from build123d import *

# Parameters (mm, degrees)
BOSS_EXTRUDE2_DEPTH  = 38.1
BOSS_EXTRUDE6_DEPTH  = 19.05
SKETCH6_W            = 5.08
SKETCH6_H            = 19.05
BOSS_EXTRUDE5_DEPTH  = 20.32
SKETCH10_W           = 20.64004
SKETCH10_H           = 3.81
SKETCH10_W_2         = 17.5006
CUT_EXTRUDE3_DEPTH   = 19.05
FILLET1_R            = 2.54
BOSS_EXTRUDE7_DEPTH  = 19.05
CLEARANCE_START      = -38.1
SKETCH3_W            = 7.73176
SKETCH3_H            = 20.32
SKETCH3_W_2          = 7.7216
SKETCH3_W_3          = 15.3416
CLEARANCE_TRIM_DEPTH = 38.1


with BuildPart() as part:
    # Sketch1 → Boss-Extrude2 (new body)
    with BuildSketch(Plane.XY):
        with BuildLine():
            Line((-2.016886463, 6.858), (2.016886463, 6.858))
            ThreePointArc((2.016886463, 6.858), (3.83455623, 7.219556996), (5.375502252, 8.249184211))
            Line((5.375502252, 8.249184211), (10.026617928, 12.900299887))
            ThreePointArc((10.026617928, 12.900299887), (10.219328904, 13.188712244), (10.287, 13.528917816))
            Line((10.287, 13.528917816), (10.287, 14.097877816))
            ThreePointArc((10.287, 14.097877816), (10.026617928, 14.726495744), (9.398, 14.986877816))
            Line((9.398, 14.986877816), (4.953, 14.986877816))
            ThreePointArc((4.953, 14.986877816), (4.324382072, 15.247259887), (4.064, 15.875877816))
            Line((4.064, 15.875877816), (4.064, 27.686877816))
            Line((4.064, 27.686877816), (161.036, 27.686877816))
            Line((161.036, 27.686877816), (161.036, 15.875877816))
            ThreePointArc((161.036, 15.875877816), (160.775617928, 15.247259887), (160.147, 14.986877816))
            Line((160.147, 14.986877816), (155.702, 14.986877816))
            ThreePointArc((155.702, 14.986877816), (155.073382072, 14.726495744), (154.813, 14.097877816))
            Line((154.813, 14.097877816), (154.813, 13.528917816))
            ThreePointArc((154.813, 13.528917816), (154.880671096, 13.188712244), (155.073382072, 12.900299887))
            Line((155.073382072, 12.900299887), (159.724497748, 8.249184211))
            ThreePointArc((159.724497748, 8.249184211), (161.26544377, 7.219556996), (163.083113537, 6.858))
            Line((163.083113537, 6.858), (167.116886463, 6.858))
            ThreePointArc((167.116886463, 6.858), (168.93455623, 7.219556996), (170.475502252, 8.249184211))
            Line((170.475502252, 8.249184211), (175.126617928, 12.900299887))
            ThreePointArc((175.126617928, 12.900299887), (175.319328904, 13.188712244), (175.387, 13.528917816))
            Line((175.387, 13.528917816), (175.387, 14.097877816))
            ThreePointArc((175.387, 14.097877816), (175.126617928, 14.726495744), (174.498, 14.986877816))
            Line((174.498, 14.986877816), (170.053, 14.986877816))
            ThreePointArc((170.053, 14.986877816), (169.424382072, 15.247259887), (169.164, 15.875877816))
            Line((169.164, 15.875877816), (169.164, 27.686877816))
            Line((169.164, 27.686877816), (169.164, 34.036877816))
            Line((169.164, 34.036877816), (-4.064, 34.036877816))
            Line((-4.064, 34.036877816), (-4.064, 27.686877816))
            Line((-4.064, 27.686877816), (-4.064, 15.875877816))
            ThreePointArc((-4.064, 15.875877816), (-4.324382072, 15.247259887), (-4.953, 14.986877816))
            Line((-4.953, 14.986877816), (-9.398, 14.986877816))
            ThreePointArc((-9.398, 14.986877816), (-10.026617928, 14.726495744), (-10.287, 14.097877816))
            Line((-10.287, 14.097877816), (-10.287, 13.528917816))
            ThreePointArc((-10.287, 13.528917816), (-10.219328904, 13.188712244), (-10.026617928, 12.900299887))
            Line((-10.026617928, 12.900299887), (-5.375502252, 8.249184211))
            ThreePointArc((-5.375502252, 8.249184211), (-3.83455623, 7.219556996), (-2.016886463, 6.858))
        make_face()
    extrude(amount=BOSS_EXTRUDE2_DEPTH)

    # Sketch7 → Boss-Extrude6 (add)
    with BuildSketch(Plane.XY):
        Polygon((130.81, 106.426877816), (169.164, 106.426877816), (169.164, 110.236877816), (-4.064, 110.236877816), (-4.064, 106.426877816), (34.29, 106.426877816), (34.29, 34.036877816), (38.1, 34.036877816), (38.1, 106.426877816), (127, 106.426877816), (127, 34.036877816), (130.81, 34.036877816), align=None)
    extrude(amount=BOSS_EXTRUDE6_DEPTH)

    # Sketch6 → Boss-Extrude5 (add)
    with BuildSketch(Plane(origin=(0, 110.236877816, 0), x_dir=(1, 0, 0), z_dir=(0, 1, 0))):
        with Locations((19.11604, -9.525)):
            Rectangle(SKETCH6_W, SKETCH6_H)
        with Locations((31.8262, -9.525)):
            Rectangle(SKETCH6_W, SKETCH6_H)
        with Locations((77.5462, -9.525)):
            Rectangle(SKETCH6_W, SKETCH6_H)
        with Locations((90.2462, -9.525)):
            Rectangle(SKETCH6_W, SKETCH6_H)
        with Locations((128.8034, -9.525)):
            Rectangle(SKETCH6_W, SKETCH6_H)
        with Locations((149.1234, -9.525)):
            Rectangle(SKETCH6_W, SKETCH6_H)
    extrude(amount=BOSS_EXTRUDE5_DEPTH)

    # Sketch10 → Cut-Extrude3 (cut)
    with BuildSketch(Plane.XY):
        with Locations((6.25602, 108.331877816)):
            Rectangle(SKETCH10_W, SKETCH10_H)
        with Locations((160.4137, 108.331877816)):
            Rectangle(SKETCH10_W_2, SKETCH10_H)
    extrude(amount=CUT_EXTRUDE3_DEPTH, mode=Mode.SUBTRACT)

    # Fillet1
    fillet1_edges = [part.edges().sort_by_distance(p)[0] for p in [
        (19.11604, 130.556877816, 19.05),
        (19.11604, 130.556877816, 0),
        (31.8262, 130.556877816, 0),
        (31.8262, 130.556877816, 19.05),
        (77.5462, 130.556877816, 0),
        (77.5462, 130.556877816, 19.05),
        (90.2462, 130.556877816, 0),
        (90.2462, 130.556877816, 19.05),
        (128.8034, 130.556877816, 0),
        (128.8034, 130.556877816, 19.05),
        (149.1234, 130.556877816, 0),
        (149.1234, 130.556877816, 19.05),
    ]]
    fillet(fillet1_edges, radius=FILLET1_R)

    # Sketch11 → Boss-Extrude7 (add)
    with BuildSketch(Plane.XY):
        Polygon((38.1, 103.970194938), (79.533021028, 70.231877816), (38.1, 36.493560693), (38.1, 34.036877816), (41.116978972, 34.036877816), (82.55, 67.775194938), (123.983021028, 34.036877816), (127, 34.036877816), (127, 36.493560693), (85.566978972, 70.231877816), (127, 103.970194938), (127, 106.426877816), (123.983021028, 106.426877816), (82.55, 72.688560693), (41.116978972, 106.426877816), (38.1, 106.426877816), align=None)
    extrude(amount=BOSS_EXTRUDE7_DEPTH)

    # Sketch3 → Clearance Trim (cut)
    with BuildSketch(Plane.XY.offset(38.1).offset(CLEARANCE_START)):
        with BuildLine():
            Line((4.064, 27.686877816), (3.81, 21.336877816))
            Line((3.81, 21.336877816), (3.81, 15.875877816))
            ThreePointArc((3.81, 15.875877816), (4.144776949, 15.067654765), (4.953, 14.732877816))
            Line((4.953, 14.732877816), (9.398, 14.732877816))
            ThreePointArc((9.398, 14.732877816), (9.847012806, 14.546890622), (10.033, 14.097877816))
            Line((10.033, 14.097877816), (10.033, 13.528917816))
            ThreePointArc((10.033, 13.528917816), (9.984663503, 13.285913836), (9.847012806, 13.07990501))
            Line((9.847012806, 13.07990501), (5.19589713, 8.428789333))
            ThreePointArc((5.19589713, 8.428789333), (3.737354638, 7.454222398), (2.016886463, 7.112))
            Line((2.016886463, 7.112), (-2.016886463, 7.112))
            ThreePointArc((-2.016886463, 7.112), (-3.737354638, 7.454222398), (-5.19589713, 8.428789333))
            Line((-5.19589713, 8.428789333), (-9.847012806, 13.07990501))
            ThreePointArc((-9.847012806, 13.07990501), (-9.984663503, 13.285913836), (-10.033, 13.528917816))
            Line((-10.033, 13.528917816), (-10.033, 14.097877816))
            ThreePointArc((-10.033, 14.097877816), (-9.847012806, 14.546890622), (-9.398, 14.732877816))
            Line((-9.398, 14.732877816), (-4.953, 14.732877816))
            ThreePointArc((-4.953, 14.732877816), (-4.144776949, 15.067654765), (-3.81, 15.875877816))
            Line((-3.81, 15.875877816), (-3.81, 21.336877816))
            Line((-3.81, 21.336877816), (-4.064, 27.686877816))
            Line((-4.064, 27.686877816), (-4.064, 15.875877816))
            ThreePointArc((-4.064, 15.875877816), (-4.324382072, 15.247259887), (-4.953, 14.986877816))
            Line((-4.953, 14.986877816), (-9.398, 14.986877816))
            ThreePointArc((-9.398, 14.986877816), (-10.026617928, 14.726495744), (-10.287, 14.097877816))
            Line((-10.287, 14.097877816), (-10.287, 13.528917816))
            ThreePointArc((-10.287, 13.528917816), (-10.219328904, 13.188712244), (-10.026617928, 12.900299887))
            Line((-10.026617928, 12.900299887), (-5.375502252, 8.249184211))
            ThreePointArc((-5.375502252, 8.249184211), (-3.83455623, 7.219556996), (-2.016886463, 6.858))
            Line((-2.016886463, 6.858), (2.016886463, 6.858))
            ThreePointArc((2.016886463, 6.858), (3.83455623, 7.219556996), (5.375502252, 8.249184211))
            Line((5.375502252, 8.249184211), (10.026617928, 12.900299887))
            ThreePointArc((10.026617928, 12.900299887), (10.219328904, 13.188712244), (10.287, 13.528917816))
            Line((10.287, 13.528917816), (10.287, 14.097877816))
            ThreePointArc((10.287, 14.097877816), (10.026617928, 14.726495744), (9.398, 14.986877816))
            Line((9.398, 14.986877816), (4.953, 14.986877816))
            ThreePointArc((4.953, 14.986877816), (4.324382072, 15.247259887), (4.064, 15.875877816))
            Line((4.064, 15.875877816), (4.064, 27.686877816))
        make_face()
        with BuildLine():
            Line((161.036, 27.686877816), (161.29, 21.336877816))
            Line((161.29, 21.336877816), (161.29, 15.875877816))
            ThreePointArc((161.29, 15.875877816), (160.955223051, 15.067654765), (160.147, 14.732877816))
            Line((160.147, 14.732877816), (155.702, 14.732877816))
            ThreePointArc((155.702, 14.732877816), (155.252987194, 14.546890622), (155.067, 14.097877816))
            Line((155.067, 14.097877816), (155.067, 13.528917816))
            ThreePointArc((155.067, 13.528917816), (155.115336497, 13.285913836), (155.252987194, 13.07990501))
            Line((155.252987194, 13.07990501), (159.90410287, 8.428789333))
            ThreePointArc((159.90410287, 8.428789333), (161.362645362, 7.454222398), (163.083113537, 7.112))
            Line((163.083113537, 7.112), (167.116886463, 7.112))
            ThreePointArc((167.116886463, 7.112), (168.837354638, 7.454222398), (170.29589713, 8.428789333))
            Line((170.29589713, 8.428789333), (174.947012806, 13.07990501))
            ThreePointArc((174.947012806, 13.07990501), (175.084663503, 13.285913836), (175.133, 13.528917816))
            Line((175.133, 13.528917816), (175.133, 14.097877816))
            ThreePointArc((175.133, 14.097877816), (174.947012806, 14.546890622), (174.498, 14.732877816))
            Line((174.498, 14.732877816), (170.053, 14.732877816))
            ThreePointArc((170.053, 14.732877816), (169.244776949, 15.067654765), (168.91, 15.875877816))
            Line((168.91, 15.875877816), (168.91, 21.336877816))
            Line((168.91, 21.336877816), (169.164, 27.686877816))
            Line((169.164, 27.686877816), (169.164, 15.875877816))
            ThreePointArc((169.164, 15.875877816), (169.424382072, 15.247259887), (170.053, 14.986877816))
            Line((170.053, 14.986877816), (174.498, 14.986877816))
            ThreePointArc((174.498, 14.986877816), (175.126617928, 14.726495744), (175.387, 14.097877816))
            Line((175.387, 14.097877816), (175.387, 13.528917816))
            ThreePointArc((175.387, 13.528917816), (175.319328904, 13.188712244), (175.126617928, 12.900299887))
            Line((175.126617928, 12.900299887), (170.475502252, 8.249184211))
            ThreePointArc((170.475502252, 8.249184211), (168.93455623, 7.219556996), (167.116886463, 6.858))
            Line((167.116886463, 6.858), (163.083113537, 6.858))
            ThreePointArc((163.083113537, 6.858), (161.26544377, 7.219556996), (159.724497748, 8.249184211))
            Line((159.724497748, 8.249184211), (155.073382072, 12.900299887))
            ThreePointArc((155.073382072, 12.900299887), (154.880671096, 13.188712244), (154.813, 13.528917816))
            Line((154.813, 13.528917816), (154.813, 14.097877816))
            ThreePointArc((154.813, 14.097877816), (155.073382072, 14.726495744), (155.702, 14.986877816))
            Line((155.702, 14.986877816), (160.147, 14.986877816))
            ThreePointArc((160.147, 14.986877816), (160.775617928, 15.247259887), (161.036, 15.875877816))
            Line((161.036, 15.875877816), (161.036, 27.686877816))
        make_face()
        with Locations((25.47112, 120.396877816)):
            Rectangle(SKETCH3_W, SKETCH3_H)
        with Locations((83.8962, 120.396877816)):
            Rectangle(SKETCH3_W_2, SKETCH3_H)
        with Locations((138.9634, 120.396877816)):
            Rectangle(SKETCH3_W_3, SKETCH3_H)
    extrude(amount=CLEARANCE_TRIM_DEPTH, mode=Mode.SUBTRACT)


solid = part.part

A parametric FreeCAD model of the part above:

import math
import FreeCAD as App
import Part
import Sketcher
from FreeCAD import Vector
Q = App.Units.Quantity


def edges_at(feature, points):
    """Names of the edges that pass closest to the given points."""
    edges = feature.Shape.Edges
    near = lambda p: min(range(len(edges)), key=lambda i: edges[i].distToShape(Part.Vertex(*p))[0])
    return sorted({f"Edge{near(p) + 1}" for p in points})


def add_polygon(sketch, points):
    """Adds a closed chain of lines whose ends are joined by coincident constraints."""
    first, n = sketch.GeometryCount, len(points)
    for a, b in zip(points, points[1:] + points[:1]):
        sketch.addGeometry(Part.LineSegment(App.Vector(*a, 0), App.Vector(*b, 0)), False)
    for i in range(n):
        sketch.addConstraint(Sketcher.Constraint("Coincident", first + i, 2, first + (i + 1) % n, 1))

doc = App.newDocument("Part")
body = doc.addObject("PartDesign::Body", "Body")

# Sketch on XY plane
sketch1 = body.newObject("Sketcher::SketchObject", "Sketch")
sketch1.AttachmentSupport = (doc.getObject("XY_Plane"), [""])
sketch1.MapMode = "FlatFace"
sketch1.addGeometry([
    Part.LineSegment(Vector(-2, 6.9, 0), Vector(2, 6.9, 0)),  # 0
    Part.ArcOfCircle(Part.Circle(Vector(2, 11.6, 0), Vector(0, 0, 1), 4.7), math.radians(-90), math.radians(-45)),  # 1
    Part.LineSegment(Vector(5.4, 8.2, 0), Vector(10, 12.9, 0)),  # 2
    Part.ArcOfCircle(Part.Circle(Vector(9.4, 13.5, 0), Vector(0, 0, 1), 0.9), math.radians(-45), math.radians(0)),  # 3
    Part.LineSegment(Vector(10.3, 13.5, 0), Vector(10.3, 14.1, 0)),  # 4
    Part.ArcOfCircle(Part.Circle(Vector(9.4, 14.1, 0), Vector(0, 0, 1), 0.9), math.radians(0), math.radians(90)),  # 5
    Part.LineSegment(Vector(9.4, 15, 0), Vector(5, 15, 0)),  # 6
    Part.ArcOfCircle(Part.Circle(Vector(5, 15.9, 0), Vector(0, 0, 1), 0.9), math.radians(180), math.radians(270)),  # 7
    Part.LineSegment(Vector(4.1, 15.9, 0), Vector(4.1, 27.7, 0)),  # 8
    Part.LineSegment(Vector(4.1, 27.7, 0), Vector(161, 27.7, 0)),  # 9
    Part.LineSegment(Vector(161, 27.7, 0), Vector(161, 15.9, 0)),  # 10
    Part.ArcOfCircle(Part.Circle(Vector(160.1, 15.9, 0), Vector(0, 0, 1), 0.9), math.radians(-90), math.radians(0)),  # 11
    Part.LineSegment(Vector(160.1, 15, 0), Vector(155.7, 15, 0)),  # 12
    Part.ArcOfCircle(Part.Circle(Vector(155.7, 14.1, 0), Vector(0, 0, 1), 0.9), math.radians(90), math.radians(180)),  # 13
    Part.LineSegment(Vector(154.8, 14.1, 0), Vector(154.8, 13.5, 0)),  # 14
    Part.ArcOfCircle(Part.Circle(Vector(155.7, 13.5, 0), Vector(0, 0, 1), 0.9), math.radians(-180), math.radians(-135)),  # 15
    Part.LineSegment(Vector(155.1, 12.9, 0), Vector(159.7, 8.2, 0)),  # 16
    Part.ArcOfCircle(Part.Circle(Vector(163.1, 11.6, 0), Vector(0, 0, 1), 4.7), math.radians(-135), math.radians(-90)),  # 17
    Part.LineSegment(Vector(163.1, 6.9, 0), Vector(167.1, 6.9, 0)),  # 18
    Part.ArcOfCircle(Part.Circle(Vector(167.1, 11.6, 0), Vector(0, 0, 1), 4.7), math.radians(-90), math.radians(-45)),  # 19
    Part.LineSegment(Vector(170.5, 8.2, 0), Vector(175.1, 12.9, 0)),  # 20
    Part.ArcOfCircle(Part.Circle(Vector(174.5, 13.5, 0), Vector(0, 0, 1), 0.9), math.radians(-45), math.radians(0)),  # 21
    Part.LineSegment(Vector(175.4, 13.5, 0), Vector(175.4, 14.1, 0)),  # 22
    Part.ArcOfCircle(Part.Circle(Vector(174.5, 14.1, 0), Vector(0, 0, 1), 0.9), math.radians(0), math.radians(90)),  # 23
    Part.LineSegment(Vector(174.5, 15, 0), Vector(170.1, 15, 0)),  # 24
    Part.ArcOfCircle(Part.Circle(Vector(170.1, 15.9, 0), Vector(0, 0, 1), 0.9), math.radians(180), math.radians(270)),  # 25
    Part.LineSegment(Vector(169.2, 15.9, 0), Vector(169.2, 34, 0)),  # 26
    Part.LineSegment(Vector(169.2, 34, 0), Vector(-4.1, 34, 0)),  # 27
    Part.LineSegment(Vector(-4.1, 34, 0), Vector(-4.1, 15.9, 0)),  # 28
    Part.ArcOfCircle(Part.Circle(Vector(-5, 15.9, 0), Vector(0, 0, 1), 0.9), math.radians(-90), math.radians(0)),  # 29
    Part.LineSegment(Vector(-5, 15, 0), Vector(-9.4, 15, 0)),  # 30
    Part.ArcOfCircle(Part.Circle(Vector(-9.4, 14.1, 0), Vector(0, 0, 1), 0.9), math.radians(90), math.radians(180)),  # 31
    Part.LineSegment(Vector(-10.3, 14.1, 0), Vector(-10.3, 13.5, 0)),  # 32
    Part.ArcOfCircle(Part.Circle(Vector(-9.4, 13.5, 0), Vector(0, 0, 1), 0.9), math.radians(-180), math.radians(-135)),  # 33
    Part.LineSegment(Vector(-10, 12.9, 0), Vector(-5.4, 8.2, 0)),  # 34
    Part.ArcOfCircle(Part.Circle(Vector(-2, 11.6, 0), Vector(0, 0, 1), 4.7), math.radians(-135), math.radians(-90)),  # 35
], False)
sketch1.addConstraint([
    Sketcher.Constraint("Tangent", 0, 2, 1, 1),
    Sketcher.Constraint("Tangent", 1, 2, 2, 1),
    Sketcher.Constraint("Tangent", 2, 2, 3, 1),
    Sketcher.Constraint("Tangent", 3, 2, 4, 1),
    Sketcher.Constraint("Tangent", 4, 2, 5, 1),
    Sketcher.Constraint("Tangent", 5, 2, 6, 1),
    Sketcher.Constraint("Tangent", 6, 2, 7, 2),
    Sketcher.Constraint("Tangent", 7, 1, 8, 1),
    Sketcher.Constraint("Coincident", 8, 2, 9, 1),
    Sketcher.Constraint("Coincident", 9, 2, 10, 1),
    Sketcher.Constraint("Tangent", 10, 2, 11, 2),
    Sketcher.Constraint("Tangent", 11, 1, 12, 1),
    Sketcher.Constraint("Tangent", 12, 2, 13, 1),
    Sketcher.Constraint("Tangent", 13, 2, 14, 1),
    Sketcher.Constraint("Tangent", 14, 2, 15, 1),
    Sketcher.Constraint("Tangent", 15, 2, 16, 1),
    Sketcher.Constraint("Tangent", 16, 2, 17, 1),
    Sketcher.Constraint("Tangent", 17, 2, 18, 1),
    Sketcher.Constraint("Tangent", 18, 2, 19, 1),
    Sketcher.Constraint("Tangent", 19, 2, 20, 1),
    Sketcher.Constraint("Tangent", 20, 2, 21, 1),
    Sketcher.Constraint("Tangent", 21, 2, 22, 1),
    Sketcher.Constraint("Tangent", 22, 2, 23, 1),
    Sketcher.Constraint("Tangent", 23, 2, 24, 1),
    Sketcher.Constraint("Tangent", 24, 2, 25, 2),
    Sketcher.Constraint("Tangent", 25, 1, 26, 1),
    Sketcher.Constraint("Coincident", 26, 2, 27, 1),
    Sketcher.Constraint("Coincident", 27, 2, 28, 1),
    Sketcher.Constraint("Tangent", 28, 2, 29, 2),
    Sketcher.Constraint("Tangent", 29, 1, 30, 1),
    Sketcher.Constraint("Tangent", 30, 2, 31, 1),
    Sketcher.Constraint("Tangent", 31, 2, 32, 1),
    Sketcher.Constraint("Tangent", 32, 2, 33, 1),
    Sketcher.Constraint("Tangent", 33, 2, 34, 1),
    Sketcher.Constraint("Tangent", 34, 2, 35, 1),
    Sketcher.Constraint("Tangent", 35, 2, 0, 1),
    Sketcher.Constraint("Horizontal", 0),
    Sketcher.Constraint("Vertical", 4),
    Sketcher.Constraint("Horizontal", 6),
    Sketcher.Constraint("Vertical", 8),
    Sketcher.Constraint("Horizontal", 9),
    Sketcher.Constraint("Vertical", 10),
    Sketcher.Constraint("Horizontal", 12),
    Sketcher.Constraint("Vertical", 14),
    Sketcher.Constraint("Horizontal", 18),
    Sketcher.Constraint("Vertical", 22),
    Sketcher.Constraint("Horizontal", 24),
    Sketcher.Constraint("Vertical", 26),
    Sketcher.Constraint("Horizontal", 27),
    Sketcher.Constraint("Vertical", 28),
    Sketcher.Constraint("Horizontal", 30),
    Sketcher.Constraint("Vertical", 32),
    Sketcher.Constraint("Equal", 3, 5),
    Sketcher.Constraint("Equal", 5, 7),
    Sketcher.Constraint("Equal", 7, 11),
    Sketcher.Constraint("Equal", 11, 13),
    Sketcher.Constraint("Equal", 13, 15),
    Sketcher.Constraint("Equal", 1, 17),
    Sketcher.Constraint("Equal", 17, 19),
    Sketcher.Constraint("Equal", 15, 21),
    Sketcher.Constraint("Equal", 21, 23),
    Sketcher.Constraint("Equal", 23, 25),
    Sketcher.Constraint("Equal", 25, 29),
    Sketcher.Constraint("Equal", 29, 31),
    Sketcher.Constraint("Equal", 31, 33),
    Sketcher.Constraint("Equal", 19, 35),
    Sketcher.Constraint("Symmetric", 7, 3, 29, 3, -2),
    Sketcher.Constraint("Symmetric", 3, 3, 33, 3, -2),
    Sketcher.Constraint("Perpendicular", 2, 16),
    Sketcher.Constraint("Perpendicular", 16, 20),
    Sketcher.Constraint("Perpendicular", 20, 34),
    Sketcher.Constraint("Horizontal", 7, 3, 11, 3),
    Sketcher.Constraint("Horizontal", 3, 3, 15, 3),
    Sketcher.Constraint("Horizontal", 1, 3, 17, 3),
    Sketcher.Constraint("Horizontal", 15, 3, 21, 3),
    Sketcher.Constraint("Horizontal", 13, 3, 23, 3),
    Sketcher.Constraint("Horizontal", 2, 2, 15, 2),
    Sketcher.Constraint("Equal", 6, 12),
    Sketcher.Constraint("Equal", 0, 18),
    Sketcher.Constraint("Equal", 12, 24),
    Sketcher.Constraint("Radius", 1, Q("0.187 in")),
    Sketcher.Constraint("Radius", 3, Q("0.035 in")),
    Sketcher.Constraint("DistanceX", 9, 1, 9, 2, Q("6.18 in")),
    Sketcher.Constraint("DistanceX", 27, 2, 27, 1, Q("6.82 in")),
    Sketcher.Constraint("DistanceY", 6, 2, 8, 2, Q("0.5 in")),
    Sketcher.Constraint("DistanceX", 6, 2, 6, 1, Q("0.175 in")),
    Sketcher.Constraint("DistanceY", 26, 1, 26, 2, Q("0.715 in")),
    Sketcher.Constraint("DistanceY", -1, 1, 0, 2, Q("0.27 in")),
    Sketcher.Constraint("DistanceY", 4, 1, 4, 2, Q("0.0224 in")),
    Sketcher.Constraint("DistanceY", -1, 1, 2, 2, 12.9003),
])
pad1 = body.newObject("PartDesign::Pad", "Pad")
pad1.Profile = sketch1
pad1.Length = Q("1.5 in")

# Sketch on XY plane
sketch2 = body.newObject("Sketcher::SketchObject", "Sketch001")
sketch2.AttachmentSupport = (doc.getObject("XY_Plane"), [""])
sketch2.MapMode = "FlatFace"
add_polygon(sketch2, [(130.8, 106.4), (169.2, 106.4), (169.2, 110.2), (-4.1, 110.2), (-4.1, 106.4), (34.3, 106.4), (34.3, 34), (38.1, 34), (38.1, 106.4), (127, 106.4), (127, 34), (130.8, 34)])  # lines 0-11
sketch2.addConstraint([
    Sketcher.Constraint("Horizontal", 0),
    Sketcher.Constraint("Vertical", 1),
    Sketcher.Constraint("Horizontal", 2),
    Sketcher.Constraint("Vertical", 3),
    Sketcher.Constraint("Horizontal", 4),
    Sketcher.Constraint("Vertical", 5),
    Sketcher.Constraint("Horizontal", 6),
    Sketcher.Constraint("Vertical", 7),
    Sketcher.Constraint("Horizontal", 8),
    Sketcher.Constraint("Vertical", 9),
    Sketcher.Constraint("Horizontal", 10),
    Sketcher.Constraint("Vertical", 11),
    Sketcher.Constraint("Horizontal", 0, 2, 3, 2),
    Sketcher.Constraint("Horizontal", 4, 2, 7, 2),
    Sketcher.Constraint("Horizontal", 6, 2, 9, 2),
    Sketcher.Constraint("Equal", 0, 4),
    Sketcher.Constraint("Equal", 6, 10),
    Sketcher.Constraint("Equal", 10, 1),
    Sketcher.Constraint("DistanceX", 8, 1, 8, 2, Q("3.5 in")),
    Sketcher.Constraint("DistanceX", -1, 1, 8, 2, Q("5 in")),
    Sketcher.Constraint("DistanceY", 5, 2, 2, 2, Q("3 in")),
    Sketcher.Constraint("DistanceX", 0, 1, 0, 2, Q("1.51 in")),
    Sketcher.Constraint("DistanceX", 2, 2, 2, 1, Q("6.82 in")),
    Sketcher.Constraint("DistanceY", -1, 1, 0, 2, 106.426878),
])
pad2 = body.newObject("PartDesign::Pad", "Pad001")
pad2.Profile = sketch2
pad2.Length = Q("0.75 in")

# Sketch on XZ plane
sketch3 = body.newObject("Sketcher::SketchObject", "Sketch002")
sketch3.AttachmentSupport = (doc.getObject("XZ_Plane"), [""])
sketch3.MapMode = "FlatFace"
sketch3.AttachmentOffset = App.Placement(Vector(0, 0, -110.236878), App.Rotation())
add_polygon(sketch3, [(17, 0), (17, 19), (22, 19), (22, 0)])  # lines 0-3
add_polygon(sketch3, [(29, 0), (29, 19), (34, 19), (34, 0)])  # lines 4-7
add_polygon(sketch3, [(75, 0), (75, 19), (80, 19), (80, 0)])  # lines 8-11
add_polygon(sketch3, [(88, 0), (88, 19), (93, 19), (93, 0)])  # lines 12-15
add_polygon(sketch3, [(126, 0), (126, 19), (131, 19), (131, 0)])  # lines 16-19
add_polygon(sketch3, [(147, 0), (147, 19), (152, 19), (152, 0)])  # lines 20-23
sketch3.addConstraint([
    Sketcher.Constraint("Vertical", 0),
    Sketcher.Constraint("Horizontal", 1),
    Sketcher.Constraint("Vertical", 2),
    Sketcher.Constraint("Horizontal", 3),
    Sketcher.Constraint("Vertical", 4),
    Sketcher.Constraint("Horizontal", 5),
    Sketcher.Constraint("Vertical", 6),
    Sketcher.Constraint("Horizontal", 7),
    Sketcher.Constraint("Vertical", 8),
    Sketcher.Constraint("Horizontal", 9),
    Sketcher.Constraint("Vertical", 10),
    Sketcher.Constraint("Horizontal", 11),
    Sketcher.Constraint("Vertical", 12),
    Sketcher.Constraint("Horizontal", 13),
    Sketcher.Constraint("Vertical", 14),
    Sketcher.Constraint("Horizontal", 15),
    Sketcher.Constraint("Vertical", 16),
    Sketcher.Constraint("Horizontal", 17),
    Sketcher.Constraint("Vertical", 18),
    Sketcher.Constraint("Horizontal", 19),
    Sketcher.Constraint("Vertical", 20),
    Sketcher.Constraint("Horizontal", 21),
    Sketcher.Constraint("Vertical", 22),
    Sketcher.Constraint("Horizontal", 23),
    Sketcher.Constraint("PointOnObject", 2, 2, -1),
    Sketcher.Constraint("PointOnObject", 6, 2, -1),
    Sketcher.Constraint("PointOnObject", 10, 2, -1),
    Sketcher.Constraint("PointOnObject", 14, 2, -1),
    Sketcher.Constraint("PointOnObject", 18, 2, -1),
    Sketcher.Constraint("PointOnObject", 22, 2, -1),
    Sketcher.Constraint("Horizontal", 1, 2, 4, 2),
    Sketcher.Constraint("Horizontal", 5, 2, 8, 2),
    Sketcher.Constraint("Horizontal", 9, 2, 12, 2),
    Sketcher.Constraint("Horizontal", 13, 2, 16, 2),
    Sketcher.Constraint("Horizontal", 17, 2, 20, 2),
    Sketcher.Constraint("Equal", 3, 5),
    Sketcher.Constraint("Equal", 7, 9),
    Sketcher.Constraint("Equal", 11, 13),
    Sketcher.Constraint("Equal", 15, 17),
    Sketcher.Constraint("Equal", 19, 21),
    Sketcher.Constraint("DistanceX", 1, 1, 1, 2, Q("0.2 in")),
    Sketcher.Constraint("DistanceX", 4, 2, 9, 2, Q("2 in")),
    Sketcher.Constraint("DistanceX", 16, 2, 21, 2, Q("1 in")),
    Sketcher.Constraint("DistanceY", 0, 1, 0, 2, Q("0.75 in")),
    Sketcher.Constraint("DistanceX", 9, 2, 12, 2, Q("0.3 in")),
    Sketcher.Constraint("DistanceX", -1, 1, 4, 2, Q("1.153 in")),
    Sketcher.Constraint("DistanceX", -1, 1, 16, 2, Q("4.971 in")),
    Sketcher.Constraint("DistanceX", -1, 1, 0, 2, Q("0.6526 in")),
])
pad3 = body.newObject("PartDesign::Pad", "Pad002")
pad3.Profile = sketch3
pad3.Length = Q("0.8 in")
pad3.Reversed = True

# Sketch on XY plane
sketch4 = body.newObject("Sketcher::SketchObject", "Sketch003")
sketch4.AttachmentSupport = (doc.getObject("XY_Plane"), [""])
sketch4.MapMode = "FlatFace"
add_polygon(sketch4, [(-4.1, 110.2), (-4.1, 106.4), (16.6, 106.4), (16.6, 110.2)])  # lines 0-3
add_polygon(sketch4, [(151.7, 110.2), (151.7, 106.4), (169.2, 106.4), (169.2, 110.2)])  # lines 4-7
sketch4.addConstraint([
    Sketcher.Constraint("Vertical", 0),
    Sketcher.Constraint("Horizontal", 1),
    Sketcher.Constraint("Vertical", 2),
    Sketcher.Constraint("Horizontal", 3),
    Sketcher.Constraint("Vertical", 4),
    Sketcher.Constraint("Horizontal", 5),
    Sketcher.Constraint("Vertical", 6),
    Sketcher.Constraint("Horizontal", 7),
    Sketcher.Constraint("Horizontal", 1, 2, 4, 2),
    Sketcher.Constraint("Horizontal", 3, 2, 6, 2),
    Sketcher.Constraint("DistanceY", 0, 2, 0, 1, Q("0.15 in")),
    Sketcher.Constraint("DistanceX", 5, 1, 5, 2, Q("0.689 in")),
    Sketcher.Constraint("DistanceX", 0, 2, -1, 1, Q("0.16 in")),
    Sketcher.Constraint("DistanceX", -1, 1, 5, 2, Q("6.66 in")),
    Sketcher.Constraint("DistanceX", 1, 1, 1, 2, Q("0.8126 in")),
    Sketcher.Constraint("DistanceY", -1, 1, 0, 2, 106.426878),
])
pocket1 = body.newObject("PartDesign::Pocket", "Pocket")
pocket1.Profile = sketch4
pocket1.Length = Q("0.75 in")
pocket1.Reversed = True
doc.recompute()

fillet = body.newObject("PartDesign::Fillet", "Fillet")
fillet.Base = (pocket1, edges_at(pocket1, [
    (19.116, 130.557, 19.05),
    (19.116, 130.557, 0),
    (31.826, 130.557, 0),
    (31.826, 130.557, 19.05),
    (77.546, 130.557, 0),
    (77.546, 130.557, 19.05),
    (90.246, 130.557, 0),
    (90.246, 130.557, 19.05),
    (128.803, 130.557, 0),
    (128.803, 130.557, 19.05),
    (149.123, 130.557, 0),
    (149.123, 130.557, 19.05),
]))
fillet.Radius = Q("0.1 in")

# Sketch on XY plane
sketch5 = body.newObject("Sketcher::SketchObject", "Sketch004")
sketch5.AttachmentSupport = (doc.getObject("XY_Plane"), [""])
sketch5.MapMode = "FlatFace"
add_polygon(sketch5, [(38.1, 104), (79.5, 70.2), (38.1, 36.5), (38.1, 34), (41.1, 34), (82.5, 67.8), (124, 34), (127, 34), (127, 36.5), (85.6, 70.2), (127, 104), (127, 106.4), (124, 106.4), (82.5, 72.7), (41.1, 106.4), (38.1, 106.4)])  # lines 0-15
sketch5.addConstraint([
    Sketcher.Constraint("Vertical", 2),
    Sketcher.Constraint("Horizontal", 3),
    Sketcher.Constraint("Horizontal", 6),
    Sketcher.Constraint("Vertical", 7),
    Sketcher.Constraint("Vertical", 10),
    Sketcher.Constraint("Horizontal", 11),
    Sketcher.Constraint("Horizontal", 14),
    Sketcher.Constraint("Vertical", 15),
    Sketcher.Constraint("Parallel", 1, 4),
    Sketcher.Constraint("Parallel", 0, 5),
    Sketcher.Constraint("Parallel", 5, 8),
    Sketcher.Constraint("Parallel", 4, 9),
    Sketcher.Constraint("Parallel", 9, 12),
    Sketcher.Constraint("Parallel", 8, 13),
    Sketcher.Constraint("Horizontal", 3, 2, 5, 2),
    Sketcher.Constraint("Horizontal", 1, 2, 7, 2),
    Sketcher.Constraint("Horizontal", 0, 2, 8, 2),
    Sketcher.Constraint("Horizontal", 11, 2, 13, 2),
    Sketcher.Constraint("Horizontal", 9, 2, 15, 2),
    Sketcher.Constraint("Vertical", 7, 2, 9, 2),
    Sketcher.Constraint("Vertical", 5, 2, 11, 2),
    Sketcher.Constraint("Vertical", 4, 2, 12, 2),
    Sketcher.Constraint("Vertical", 3, 2, 13, 2),
    Sketcher.Constraint("Equal", 3, 6),
    Sketcher.Constraint("Equal", 7, 10),
    Sketcher.Constraint("Equal", 1, 4),
    Sketcher.Constraint("DistanceX", -1, 1, 6, 2, Q("5 in")),
    Sketcher.Constraint("DistanceX", -1, 1, 1, 2, Q("1.5 in")),
    Sketcher.Constraint("DistanceY", 2, 2, 0, 2, Q("1.425 in")),
    Sketcher.Constraint("DistanceX", 3, 1, 3, 2, 3.016979),
    Sketcher.Constraint("DistanceY", 2, 2, 2, 1, 2.456683),
    Sketcher.Constraint("DistanceY", -1, 1, 1, 2, 36.493561),
])
pad4 = body.newObject("PartDesign::Pad", "Pad003")
pad4.Profile = sketch5
pad4.Length = Q("0.75 in")

# Sketch on XY plane
sketch6 = body.newObject("Sketcher::SketchObject", "Sketch005")
sketch6.AttachmentSupport = (doc.getObject("XY_Plane"), [""])
sketch6.MapMode = "FlatFace"
sketch6.addGeometry(Part.LineSegment(Vector(4.06, 27.69, 0), Vector(3.81, 21.34, 0)), False)  # 0
sketch6.addGeometry(Part.LineSegment(Vector(3.81, 21.34, 0), Vector(3.81, 15.88, 0)), False)  # 1
sketch6.addGeometry(Part.ArcOfCircle(Part.Circle(Vector(4.95, 15.88, 0), Vector(0, 0, 1), 1.14), math.radians(180), math.radians(270)), False)  # 2
sketch6.addGeometry(Part.LineSegment(Vector(4.95, 14.73, 0), Vector(9.4, 14.73, 0)), False)  # 3
sketch6.addGeometry(Part.ArcOfCircle(Part.Circle(Vector(9.4, 14.1, 0), Vector(0, 0, 1), 0.64), math.radians(0), math.radians(90)), False)  # 4
sketch6.addGeometry(Part.LineSegment(Vector(10.03, 14.1, 0), Vector(10.03, 13.53, 0)), False)  # 5
sketch6.addGeometry(Part.ArcOfCircle(Part.Circle(Vector(9.4, 13.53, 0), Vector(0, 0, 1), 0.63), math.radians(-45), math.radians(0)), False)  # 6
sketch6.addGeometry(Part.LineSegment(Vector(9.85, 13.08, 0), Vector(5.2, 8.43, 0)), False)  # 7
sketch6.addGeometry(Part.ArcOfCircle(Part.Circle(Vector(2.02, 11.61, 0), Vector(0, 0, 1), 4.5), math.radians(-90), math.radians(-45)), False)  # 8
sketch6.addGeometry(Part.LineSegment(Vector(2.02, 7.11, 0), Vector(-2.02, 7.11, 0)), False)  # 9
sketch6.addGeometry(Part.ArcOfCircle(Part.Circle(Vector(-2.02, 11.61, 0), Vector(0, 0, 1), 4.5), math.radians(-135), math.radians(-90)), False)  # 10
sketch6.addGeometry(Part.LineSegment(Vector(-5.2, 8.43, 0), Vector(-9.85, 13.08, 0)), False)  # 11
sketch6.addGeometry(Part.ArcOfCircle(Part.Circle(Vector(-9.4, 13.53, 0), Vector(0, 0, 1), 0.63), math.radians(180), math.radians(225)), False)  # 12
sketch6.addGeometry(Part.LineSegment(Vector(-10.03, 13.53, 0), Vector(-10.03, 14.1, 0)), False)  # 13
sketch6.addGeometry(Part.ArcOfCircle(Part.Circle(Vector(-9.4, 14.1, 0), Vector(0, 0, 1), 0.64), math.radians(90), math.radians(180)), False)  # 14
sketch6.addGeometry(Part.LineSegment(Vector(-9.4, 14.73, 0), Vector(-4.95, 14.73, 0)), False)  # 15
sketch6.addGeometry(Part.ArcOfCircle(Part.Circle(Vector(-4.95, 15.88, 0), Vector(0, 0, 1), 1.14), math.radians(-90), math.radians(0)), False)  # 16
sketch6.addGeometry(Part.LineSegment(Vector(-3.81, 15.88, 0), Vector(-3.81, 21.34, 0)), False)  # 17
sketch6.addGeometry(Part.LineSegment(Vector(-3.81, 21.34, 0), Vector(-4.06, 27.69, 0)), False)  # 18
sketch6.addGeometry(Part.LineSegment(Vector(-4.06, 27.69, 0), Vector(-4.06, 15.88, 0)), False)  # 19
sketch6.addGeometry(Part.ArcOfCircle(Part.Circle(Vector(-4.95, 15.88, 0), Vector(0, 0, 1), 0.89), math.radians(-90), math.radians(0)), False)  # 20
sketch6.addGeometry(Part.LineSegment(Vector(-4.95, 14.99, 0), Vector(-9.4, 14.99, 0)), False)  # 21
sketch6.addGeometry(Part.ArcOfCircle(Part.Circle(Vector(-9.4, 14.1, 0), Vector(0, 0, 1), 0.89), math.radians(90), math.radians(180)), False)  # 22
sketch6.addGeometry(Part.LineSegment(Vector(-10.29, 14.1, 0), Vector(-10.29, 13.53, 0)), False)  # 23
sketch6.addGeometry(Part.ArcOfCircle(Part.Circle(Vector(-9.4, 13.53, 0), Vector(0, 0, 1), 0.89), math.radians(-180), math.radians(-135)), False)  # 24
sketch6.addGeometry(Part.LineSegment(Vector(-10.03, 12.9, 0), Vector(-5.38, 8.25, 0)), False)  # 25
sketch6.addGeometry(Part.ArcOfCircle(Part.Circle(Vector(-2.02, 11.61, 0), Vector(0, 0, 1), 4.75), math.radians(-135), math.radians(-90)), False)  # 26
sketch6.addGeometry(Part.LineSegment(Vector(-2.02, 6.86, 0), Vector(2.02, 6.86, 0)), False)  # 27
sketch6.addGeometry(Part.ArcOfCircle(Part.Circle(Vector(2.02, 11.61, 0), Vector(0, 0, 1), 4.75), math.radians(-90), math.radians(-45)), False)  # 28
sketch6.addGeometry(Part.LineSegment(Vector(5.38, 8.25, 0), Vector(10.03, 12.9, 0)), False)  # 29
sketch6.addGeometry(Part.ArcOfCircle(Part.Circle(Vector(9.4, 13.53, 0), Vector(0, 0, 1), 0.89), math.radians(-45), math.radians(0)), False)  # 30
sketch6.addGeometry(Part.LineSegment(Vector(10.29, 13.53, 0), Vector(10.29, 14.1, 0)), False)  # 31
sketch6.addGeometry(Part.ArcOfCircle(Part.Circle(Vector(9.4, 14.1, 0), Vector(0, 0, 1), 0.89), math.radians(0), math.radians(90)), False)  # 32
sketch6.addGeometry(Part.LineSegment(Vector(9.4, 14.99, 0), Vector(4.95, 14.99, 0)), False)  # 33
sketch6.addGeometry(Part.ArcOfCircle(Part.Circle(Vector(4.95, 15.88, 0), Vector(0, 0, 1), 0.89), math.radians(180), math.radians(270)), False)  # 34
sketch6.addGeometry(Part.LineSegment(Vector(4.06, 15.88, 0), Vector(4.06, 27.69, 0)), False)  # 35
sketch6.addGeometry(Part.LineSegment(Vector(161.29, 21.34, 0), Vector(161.04, 27.69, 0)), False)  # 36
sketch6.addGeometry(Part.LineSegment(Vector(161.04, 27.69, 0), Vector(161.04, 15.88, 0)), False)  # 37
sketch6.addGeometry(Part.ArcOfCircle(Part.Circle(Vector(160.15, 15.88, 0), Vector(0, 0, 1), 0.89), math.radians(-90), math.radians(0)), False)  # 38
sketch6.addGeometry(Part.LineSegment(Vector(160.15, 14.99, 0), Vector(155.7, 14.99, 0)), False)  # 39
sketch6.addGeometry(Part.ArcOfCircle(Part.Circle(Vector(155.7, 14.1, 0), Vector(0, 0, 1), 0.89), math.radians(90), math.radians(180)), False)  # 40
sketch6.addGeometry(Part.LineSegment(Vector(154.81, 14.1, 0), Vector(154.81, 13.53, 0)), False)  # 41
sketch6.addGeometry(Part.ArcOfCircle(Part.Circle(Vector(155.7, 13.53, 0), Vector(0, 0, 1), 0.89), math.radians(-180), math.radians(-135)), False)  # 42
sketch6.addGeometry(Part.LineSegment(Vector(155.07, 12.9, 0), Vector(159.72, 8.25, 0)), False)  # 43
sketch6.addGeometry(Part.ArcOfCircle(Part.Circle(Vector(163.08, 11.61, 0), Vector(0, 0, 1), 4.75), math.radians(-135), math.radians(-90)), False)  # 44
sketch6.addGeometry(Part.LineSegment(Vector(163.08, 6.86, 0), Vector(167.12, 6.86, 0)), False)  # 45
sketch6.addGeometry(Part.ArcOfCircle(Part.Circle(Vector(167.12, 11.61, 0), Vector(0, 0, 1), 4.75), math.radians(-90), math.radians(-45)), False)  # 46
sketch6.addGeometry(Part.LineSegment(Vector(170.48, 8.25, 0), Vector(175.13, 12.9, 0)), False)  # 47
sketch6.addGeometry(Part.ArcOfCircle(Part.Circle(Vector(174.5, 13.53, 0), Vector(0, 0, 1), 0.89), math.radians(-45), math.radians(0)), False)  # 48
sketch6.addGeometry(Part.LineSegment(Vector(175.39, 13.53, 0), Vector(175.39, 14.1, 0)), False)  # 49
sketch6.addGeometry(Part.ArcOfCircle(Part.Circle(Vector(174.5, 14.1, 0), Vector(0, 0, 1), 0.89), math.radians(0), math.radians(90)), False)  # 50
sketch6.addGeometry(Part.LineSegment(Vector(174.5, 14.99, 0), Vector(170.05, 14.99, 0)), False)  # 51
sketch6.addGeometry(Part.ArcOfCircle(Part.Circle(Vector(170.05, 15.88, 0), Vector(0, 0, 1), 0.89), math.radians(180), math.radians(270)), False)  # 52
sketch6.addGeometry(Part.LineSegment(Vector(169.16, 15.88, 0), Vector(169.16, 27.69, 0)), False)  # 53
sketch6.addGeometry(Part.LineSegment(Vector(169.16, 27.69, 0), Vector(168.91, 21.34, 0)), False)  # 54
sketch6.addGeometry(Part.LineSegment(Vector(168.91, 21.34, 0), Vector(168.91, 15.88, 0)), False)  # 55
sketch6.addGeometry(Part.ArcOfCircle(Part.Circle(Vector(170.05, 15.88, 0), Vector(0, 0, 1), 1.14), math.radians(180), math.radians(270)), False)  # 56
sketch6.addGeometry(Part.LineSegment(Vector(170.05, 14.73, 0), Vector(174.5, 14.73, 0)), False)  # 57
sketch6.addGeometry(Part.ArcOfCircle(Part.Circle(Vector(174.5, 14.1, 0), Vector(0, 0, 1), 0.64), math.radians(0), math.radians(90)), False)  # 58
sketch6.addGeometry(Part.LineSegment(Vector(175.13, 14.1, 0), Vector(175.13, 13.53, 0)), False)  # 59
sketch6.addGeometry(Part.ArcOfCircle(Part.Circle(Vector(174.5, 13.53, 0), Vector(0, 0, 1), 0.63), math.radians(-45), math.radians(0)), False)  # 60
sketch6.addGeometry(Part.LineSegment(Vector(174.95, 13.08, 0), Vector(170.3, 8.43, 0)), False)  # 61
sketch6.addGeometry(Part.ArcOfCircle(Part.Circle(Vector(167.12, 11.61, 0), Vector(0, 0, 1), 4.5), math.radians(-90), math.radians(-45)), False)  # 62
sketch6.addGeometry(Part.LineSegment(Vector(167.12, 7.11, 0), Vector(163.08, 7.11, 0)), False)  # 63
sketch6.addGeometry(Part.ArcOfCircle(Part.Circle(Vector(163.08, 11.61, 0), Vector(0, 0, 1), 4.5), math.radians(-135), math.radians(-90)), False)  # 64
sketch6.addGeometry(Part.LineSegment(Vector(159.9, 8.43, 0), Vector(155.25, 13.08, 0)), False)  # 65
sketch6.addGeometry(Part.ArcOfCircle(Part.Circle(Vector(155.7, 13.53, 0), Vector(0, 0, 1), 0.63), math.radians(180), math.radians(225)), False)  # 66
sketch6.addGeometry(Part.LineSegment(Vector(155.07, 13.53, 0), Vector(155.07, 14.1, 0)), False)  # 67
sketch6.addGeometry(Part.ArcOfCircle(Part.Circle(Vector(155.7, 14.1, 0), Vector(0, 0, 1), 0.64), math.radians(90), math.radians(180)), False)  # 68
sketch6.addGeometry(Part.LineSegment(Vector(155.7, 14.73, 0), Vector(160.15, 14.73, 0)), False)  # 69
sketch6.addGeometry(Part.ArcOfCircle(Part.Circle(Vector(160.15, 15.88, 0), Vector(0, 0, 1), 1.14), math.radians(-90), math.radians(0)), False)  # 70
sketch6.addGeometry(Part.LineSegment(Vector(161.29, 15.88, 0), Vector(161.29, 21.34, 0)), False)  # 71
add_polygon(sketch6, [(21.61, 130.56), (21.61, 110.24), (29.34, 110.24), (29.34, 130.56)])  # lines 72-75
add_polygon(sketch6, [(80.04, 130.56), (80.04, 110.24), (87.76, 110.24), (87.76, 130.56)])  # lines 76-79
add_polygon(sketch6, [(131.29, 130.56), (131.29, 110.24), (146.63, 110.24), (146.63, 130.56)])  # lines 80-83
sketch6.addConstraint([
    Sketcher.Constraint("Coincident", 0, 2, 1, 1),
    Sketcher.Constraint("Tangent", 1, 2, 2, 1),
    Sketcher.Constraint("Tangent", 2, 2, 3, 1),
    Sketcher.Constraint("Tangent", 3, 2, 4, 2),
    Sketcher.Constraint("Tangent", 4, 1, 5, 1),
    Sketcher.Constraint("Tangent", 5, 2, 6, 2),
    Sketcher.Constraint("Tangent", 6, 1, 7, 1),
    Sketcher.Constraint("Tangent", 7, 2, 8, 2),
    Sketcher.Constraint("Tangent", 8, 1, 9, 1),
    Sketcher.Constraint("Tangent", 9, 2, 10, 2),
    Sketcher.Constraint("Tangent", 10, 1, 11, 1),
    Sketcher.Constraint("Tangent", 11, 2, 12, 2),
    Sketcher.Constraint("Tangent", 12, 1, 13, 1),
    Sketcher.Constraint("Tangent", 13, 2, 14, 2),
    Sketcher.Constraint("Tangent", 14, 1, 15, 1),
    Sketcher.Constraint("Tangent", 15, 2, 16, 1),
    Sketcher.Constraint("Tangent", 16, 2, 17, 1),
    Sketcher.Constraint("Coincident", 17, 2, 18, 1),
    Sketcher.Constraint("Coincident", 18, 2, 19, 1),
    Sketcher.Constraint("Tangent", 19, 2, 20, 2),
    Sketcher.Constraint("Tangent", 20, 1, 21, 1),
    Sketcher.Constraint("Tangent", 21, 2, 22, 1),
    Sketcher.Constraint("Tangent", 22, 2, 23, 1),
    Sketcher.Constraint("Tangent", 23, 2, 24, 1),
    Sketcher.Constraint("Tangent", 24, 2, 25, 1),
    Sketcher.Constraint("Tangent", 25, 2, 26, 1),
    Sketcher.Constraint("Tangent", 26, 2, 27, 1),
    Sketcher.Constraint("Tangent", 27, 2, 28, 1),
    Sketcher.Constraint("Tangent", 28, 2, 29, 1),
    Sketcher.Constraint("Tangent", 29, 2, 30, 1),
    Sketcher.Constraint("Tangent", 30, 2, 31, 1),
    Sketcher.Constraint("Tangent", 31, 2, 32, 1),
    Sketcher.Constraint("Tangent", 32, 2, 33, 1),
    Sketcher.Constraint("Tangent", 33, 2, 34, 2),
    Sketcher.Constraint("Tangent", 34, 1, 35, 1),
    Sketcher.Constraint("Coincident", 35, 2, 0, 1),
    Sketcher.Constraint("Coincident", 36, 2, 37, 1),
    Sketcher.Constraint("Tangent", 37, 2, 38, 2),
    Sketcher.Constraint("Tangent", 38, 1, 39, 1),
    Sketcher.Constraint("Tangent", 39, 2, 40, 1),
    Sketcher.Constraint("Tangent", 40, 2, 41, 1),
    Sketcher.Constraint("Tangent", 41, 2, 42, 1),
    Sketcher.Constraint("Tangent", 42, 2, 43, 1),
    Sketcher.Constraint("Tangent", 43, 2, 44, 1),
    Sketcher.Constraint("Tangent", 44, 2, 45, 1),
    Sketcher.Constraint("Tangent", 45, 2, 46, 1),
    Sketcher.Constraint("Tangent", 46, 2, 47, 1),
    Sketcher.Constraint("Tangent", 47, 2, 48, 1),
    Sketcher.Constraint("Tangent", 48, 2, 49, 1),
    Sketcher.Constraint("Tangent", 49, 2, 50, 1),
    Sketcher.Constraint("Tangent", 50, 2, 51, 1),
    Sketcher.Constraint("Tangent", 51, 2, 52, 2),
    Sketcher.Constraint("Tangent", 52, 1, 53, 1),
    Sketcher.Constraint("Coincident", 53, 2, 54, 1),
    Sketcher.Constraint("Coincident", 54, 2, 55, 1),
    Sketcher.Constraint("Tangent", 55, 2, 56, 1),
    Sketcher.Constraint("Tangent", 56, 2, 57, 1),
    Sketcher.Constraint("Tangent", 57, 2, 58, 2),
    Sketcher.Constraint("Tangent", 58, 1, 59, 1),
    Sketcher.Constraint("Tangent", 59, 2, 60, 2),
    Sketcher.Constraint("Tangent", 60, 1, 61, 1),
    Sketcher.Constraint("Tangent", 61, 2, 62, 2),
    Sketcher.Constraint("Tangent", 62, 1, 63, 1),
    Sketcher.Constraint("Tangent", 63, 2, 64, 2),
    Sketcher.Constraint("Tangent", 64, 1, 65, 1),
    Sketcher.Constraint("Tangent", 65, 2, 66, 2),
    Sketcher.Constraint("Tangent", 66, 1, 67, 1),
    Sketcher.Constraint("Tangent", 67, 2, 68, 2),
    Sketcher.Constraint("Tangent", 68, 1, 69, 1),
    Sketcher.Constraint("Tangent", 69, 2, 70, 1),
    Sketcher.Constraint("Tangent", 70, 2, 71, 1),
    Sketcher.Constraint("Coincident", 71, 2, 36, 1),
    Sketcher.Constraint("Vertical", 1),
    Sketcher.Constraint("Horizontal", 3),
    Sketcher.Constraint("Vertical", 5),
    Sketcher.Constraint("Horizontal", 9),
    Sketcher.Constraint("Vertical", 13),
    Sketcher.Constraint("Horizontal", 15),
    Sketcher.Constraint("Vertical", 17),
    Sketcher.Constraint("Vertical", 19),
    Sketcher.Constraint("Horizontal", 21),
    Sketcher.Constraint("Vertical", 23),
    Sketcher.Constraint("Horizontal", 27),
    Sketcher.Constraint("Vertical", 31),
    Sketcher.Constraint("Horizontal", 33),
    Sketcher.Constraint("Vertical", 35),
    Sketcher.Constraint("Vertical", 37),
    Sketcher.Constraint("Horizontal", 39),
    Sketcher.Constraint("Vertical", 41),
    Sketcher.Constraint("Horizontal", 45),
    Sketcher.Constraint("Vertical", 49),
    Sketcher.Constraint("Horizontal", 51),
    Sketcher.Constraint("Vertical", 53),
    Sketcher.Constraint("Vertical", 55),
    Sketcher.Constraint("Horizontal", 57),
    Sketcher.Constraint("Vertical", 59),
    Sketcher.Constraint("Horizontal", 63),
    Sketcher.Constraint("Vertical", 67),
    Sketcher.Constraint("Horizontal", 69),
    Sketcher.Constraint("Vertical", 71),
    Sketcher.Constraint("Vertical", 72),
    Sketcher.Constraint("Horizontal", 73),
    Sketcher.Constraint("Vertical", 74),
    Sketcher.Constraint("Horizontal", 75),
    Sketcher.Constraint("Vertical", 76),
    Sketcher.Constraint("Horizontal", 77),
    Sketcher.Constraint("Vertical", 78),
    Sketcher.Constraint("Horizontal", 79),
    Sketcher.Constraint("Vertical", 80),
    Sketcher.Constraint("Horizontal", 81),
    Sketcher.Constraint("Vertical", 82),
    Sketcher.Constraint("Horizontal", 83),
    Sketcher.Constraint("Coincident", 20, 3, 16, 3),
    Sketcher.Constraint("Coincident", 22, 3, 14, 3),
    Sketcher.Constraint("Coincident", 24, 3, 12, 3),
    Sketcher.Constraint("Coincident", 26, 3, 10, 3),
    Sketcher.Constraint("Coincident", 28, 3, 8, 3),
    Sketcher.Constraint("Coincident", 30, 3, 6, 3),
    Sketcher.Constraint("Coincident", 32, 3, 4, 3),
    Sketcher.Constraint("Coincident", 34, 3, 2, 3),
    Sketcher.Constraint("Coincident", 56, 3, 52, 3),
    Sketcher.Constraint("Coincident", 58, 3, 50, 3),
    Sketcher.Constraint("Coincident", 60, 3, 48, 3),
    Sketcher.Constraint("Coincident", 62, 3, 46, 3),
    Sketcher.Constraint("Coincident", 64, 3, 44, 3),
    Sketcher.Constraint("Coincident", 66, 3, 42, 3),
    Sketcher.Constraint("Coincident", 68, 3, 40, 3),
    Sketcher.Constraint("Coincident", 70, 3, 38, 3),
    Sketcher.Constraint("Equal", 4, 6),
    Sketcher.Constraint("Equal", 8, 10),
    Sketcher.Constraint("Equal", 6, 12),
    Sketcher.Constraint("Equal", 12, 14),
    Sketcher.Constraint("Equal", 2, 16),
    Sketcher.Constraint("Equal", 20, 22),
    Sketcher.Constraint("Equal", 24, 30),
    Sketcher.Constraint("Equal", 34, 38),
    Sketcher.Constraint("Equal", 38, 40),
    Sketcher.Constraint("Equal", 40, 42),
    Sketcher.Constraint("Equal", 28, 44),
    Sketcher.Constraint("Equal", 44, 46),
    Sketcher.Constraint("Equal", 42, 48),
    Sketcher.Constraint("Equal", 48, 50),
    Sketcher.Constraint("Equal", 50, 52),
    Sketcher.Constraint("Equal", 16, 56),
    Sketcher.Constraint("Equal", 10, 62),
    Sketcher.Constraint("Equal", 60, 66),
    Sketcher.Constraint("Symmetric", 6, 3, 12, 3, -2),
    Sketcher.Constraint("Symmetric", 2, 3, 16, 3, -2),
    Sketcher.Constraint("Perpendicular", 7, 11),
    Sketcher.Constraint("Parallel", 11, 25),
    Sketcher.Constraint("Parallel", 18, 36),
    Sketcher.Constraint("Perpendicular", 29, 43),
    Sketcher.Constraint("Perpendicular", 43, 47),
    Sketcher.Constraint("Parallel", 0, 54),
    Sketcher.Constraint("Horizontal", 34, 3, 38, 3),
    Sketcher.Constraint("Horizontal", 30, 3, 42, 3),
    Sketcher.Constraint("Horizontal", 28, 3, 44, 3),
    Sketcher.Constraint("Horizontal", 42, 3, 48, 3),
    Sketcher.Constraint("Horizontal", 40, 3, 50, 3),
    Sketcher.Constraint("Horizontal", 7, 2, 10, 1),
    Sketcher.Constraint("Horizontal", 0, 2, 17, 2),
    Sketcher.Constraint("Horizontal", 18, 2, 35, 2),
    Sketcher.Constraint("Horizontal", 35, 2, 36, 2),
    Sketcher.Constraint("Horizontal", 36, 2, 53, 2),
    Sketcher.Constraint("Horizontal", 73, 2, 76, 2),
    Sketcher.Constraint("Horizontal", 75, 2, 78, 2),
    Sketcher.Constraint("Horizontal", 77, 2, 80, 2),
    Sketcher.Constraint("Horizontal", 79, 2, 82, 2),
    Sketcher.Constraint("Equal", 33, 39),
    Sketcher.Constraint("Equal", 27, 45),
    Sketcher.Constraint("Equal", 39, 51),
    Sketcher.Constraint("DistanceY", 72, 2, 72, 1, Q("0.8 in")),
    Sketcher.Constraint("Radius", 2, Q("0.045 in")),
    Sketcher.Constraint("Radius", 4, Q("0.025 in")),
    Sketcher.Constraint("Radius", 8, Q("0.177 in")),
    Sketcher.Constraint("DistanceX", 3, 1, 3, 2, Q("0.175 in")),
    Sketcher.Constraint("DistanceX", 77, 1, 77, 2, Q("0.304 in")),
    Sketcher.Constraint("DistanceX", 81, 1, 81, 2, Q("0.604 in")),
    Sketcher.Constraint("DistanceY", 1, 2, 1, 1, Q("0.215 in")),
    Sketcher.Constraint("DistanceY", 19, 2, 19, 1, Q("0.465 in")),
    Sketcher.Constraint("DistanceX", -1, 1, 4, 3, Q("0.37 in")),
    Sketcher.Constraint("DistanceX", -1, 1, 40, 3, Q("6.13 in")),
    Sketcher.Constraint("DistanceY", -1, 1, 8, 1, Q("0.28 in")),
    Sketcher.Constraint("DistanceX", 73, 1, 73, 2, Q("0.3044 in")),
    Sketcher.Constraint("DistanceY", 5, 2, 5, 1, Q("0.0224 in")),
    Sketcher.Constraint("DistanceX", -1, 1, 73, 2, Q("1.155 in")),
    Sketcher.Constraint("DistanceX", -1, 1, 76, 2, Q("3.151 in")),
    Sketcher.Constraint("DistanceX", -1, 1, 80, 2, Q("5.169 in")),
    Sketcher.Constraint("DistanceY", -1, 1, 24, 2, 12.9003),
    Sketcher.Constraint("DistanceY", -1, 1, 72, 2, 110.236878),
])
pocket2 = body.newObject("PartDesign::Pocket", "Pocket001")
pocket2.Profile = sketch6
pocket2.Length = Q("1.5 in")
pocket2.Reversed = True

doc.recompute()
